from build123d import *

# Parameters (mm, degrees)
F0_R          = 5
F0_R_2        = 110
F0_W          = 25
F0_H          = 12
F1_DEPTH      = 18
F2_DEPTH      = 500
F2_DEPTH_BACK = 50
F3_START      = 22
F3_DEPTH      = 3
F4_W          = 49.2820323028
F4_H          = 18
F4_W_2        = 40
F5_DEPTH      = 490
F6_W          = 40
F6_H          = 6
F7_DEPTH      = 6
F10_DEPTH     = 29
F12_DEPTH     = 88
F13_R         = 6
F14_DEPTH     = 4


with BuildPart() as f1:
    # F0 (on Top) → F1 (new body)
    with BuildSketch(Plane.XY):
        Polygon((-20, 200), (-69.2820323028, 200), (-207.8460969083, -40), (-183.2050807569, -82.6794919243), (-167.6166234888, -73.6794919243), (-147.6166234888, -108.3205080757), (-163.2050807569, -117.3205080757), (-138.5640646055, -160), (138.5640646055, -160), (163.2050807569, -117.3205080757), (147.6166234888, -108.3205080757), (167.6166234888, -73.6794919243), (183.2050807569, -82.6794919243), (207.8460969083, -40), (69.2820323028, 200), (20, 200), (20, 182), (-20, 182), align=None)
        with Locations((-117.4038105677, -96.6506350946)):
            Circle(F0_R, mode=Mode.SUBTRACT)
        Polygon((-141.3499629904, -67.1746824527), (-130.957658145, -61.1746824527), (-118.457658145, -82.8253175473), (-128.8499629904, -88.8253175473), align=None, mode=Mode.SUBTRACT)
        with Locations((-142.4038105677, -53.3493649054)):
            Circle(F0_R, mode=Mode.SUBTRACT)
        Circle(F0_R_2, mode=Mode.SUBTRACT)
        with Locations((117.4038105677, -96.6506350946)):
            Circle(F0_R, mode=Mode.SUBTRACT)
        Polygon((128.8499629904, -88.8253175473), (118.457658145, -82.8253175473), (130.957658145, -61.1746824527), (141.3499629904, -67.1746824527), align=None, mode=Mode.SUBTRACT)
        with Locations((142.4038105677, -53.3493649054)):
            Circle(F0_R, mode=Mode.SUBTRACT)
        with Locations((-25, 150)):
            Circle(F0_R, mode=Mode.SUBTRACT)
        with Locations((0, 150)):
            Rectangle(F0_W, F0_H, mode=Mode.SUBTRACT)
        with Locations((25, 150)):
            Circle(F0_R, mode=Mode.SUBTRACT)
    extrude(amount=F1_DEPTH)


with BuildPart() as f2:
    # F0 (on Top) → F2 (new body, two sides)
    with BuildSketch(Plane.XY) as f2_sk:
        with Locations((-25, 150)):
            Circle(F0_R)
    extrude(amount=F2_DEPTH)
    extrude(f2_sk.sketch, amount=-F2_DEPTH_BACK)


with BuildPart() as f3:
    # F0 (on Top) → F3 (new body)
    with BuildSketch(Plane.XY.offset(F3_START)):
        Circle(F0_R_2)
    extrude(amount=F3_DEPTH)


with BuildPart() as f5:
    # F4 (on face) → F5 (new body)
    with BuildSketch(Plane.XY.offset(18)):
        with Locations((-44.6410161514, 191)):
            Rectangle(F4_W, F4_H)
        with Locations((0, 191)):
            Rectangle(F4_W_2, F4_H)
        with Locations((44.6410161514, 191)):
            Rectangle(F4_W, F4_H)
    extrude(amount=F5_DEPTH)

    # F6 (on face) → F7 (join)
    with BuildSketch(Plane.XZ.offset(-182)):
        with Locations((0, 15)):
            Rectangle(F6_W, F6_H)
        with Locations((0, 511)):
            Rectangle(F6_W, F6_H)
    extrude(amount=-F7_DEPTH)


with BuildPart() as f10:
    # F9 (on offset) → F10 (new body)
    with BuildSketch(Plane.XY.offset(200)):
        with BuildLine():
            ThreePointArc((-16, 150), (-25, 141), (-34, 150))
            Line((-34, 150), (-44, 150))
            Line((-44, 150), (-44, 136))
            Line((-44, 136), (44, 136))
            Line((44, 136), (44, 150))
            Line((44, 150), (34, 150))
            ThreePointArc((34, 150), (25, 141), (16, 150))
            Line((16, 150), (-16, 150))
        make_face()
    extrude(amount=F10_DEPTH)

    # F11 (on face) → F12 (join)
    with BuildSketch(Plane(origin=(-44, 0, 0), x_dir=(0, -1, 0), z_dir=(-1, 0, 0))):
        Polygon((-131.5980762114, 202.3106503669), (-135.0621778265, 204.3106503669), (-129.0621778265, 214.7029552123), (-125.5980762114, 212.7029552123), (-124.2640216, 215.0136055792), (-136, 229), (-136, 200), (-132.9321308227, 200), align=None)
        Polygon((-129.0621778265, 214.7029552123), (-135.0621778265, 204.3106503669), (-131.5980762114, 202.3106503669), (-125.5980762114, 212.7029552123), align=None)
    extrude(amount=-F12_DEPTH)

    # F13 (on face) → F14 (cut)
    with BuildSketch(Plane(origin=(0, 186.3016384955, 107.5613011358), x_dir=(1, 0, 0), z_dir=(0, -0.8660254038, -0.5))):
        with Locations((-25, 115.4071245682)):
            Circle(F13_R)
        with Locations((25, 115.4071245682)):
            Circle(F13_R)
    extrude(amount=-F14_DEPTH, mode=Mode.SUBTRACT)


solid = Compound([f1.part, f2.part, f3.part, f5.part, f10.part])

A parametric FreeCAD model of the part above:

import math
import FreeCAD as App
import Part
import Sketcher
from FreeCAD import Vector
Q = App.Units.Quantity

doc = App.newDocument("Part")
body = doc.addObject("PartDesign::Body", "Body")

# Sketch on XY plane
sketch1 = body.newObject("Sketcher::SketchObject", "Sketch")
sketch1.AttachmentSupport = (doc.getObject("XY_Plane"), [""])
sketch1.MapMode = "FlatFace"
sketch1.addGeometry(Part.LineSegment(Vector(-20, 200, 0), Vector(-69, 200, 0)), False)
sketch1.addGeometry(Part.LineSegment(Vector(-69, 200, 0), Vector(-208, -40, 0)), False)
sketch1.addGeometry(Part.LineSegment(Vector(-208, -40, 0), Vector(-183, -83, 0)), False)
sketch1.addGeometry(Part.LineSegment(Vector(-183, -83, 0), Vector(-168, -74, 0)), False)
sketch1.addGeometry(Part.LineSegment(Vector(-168, -74, 0), Vector(-148, -108, 0)), False)
sketch1.addGeometry(Part.LineSegment(Vector(-148, -108, 0), Vector(-163, -117, 0)), False)
sketch1.addGeometry(Part.LineSegment(Vector(-163, -117, 0), Vector(-139, -160, 0)), False)
sketch1.addGeometry(Part.LineSegment(Vector(-139, -160, 0), Vector(139, -160, 0)), False)
sketch1.addGeometry(Part.LineSegment(Vector(139, -160, 0), Vector(163, -117, 0)), False)
sketch1.addGeometry(Part.LineSegment(Vector(163, -117, 0), Vector(148, -108, 0)), False)
sketch1.addGeometry(Part.LineSegment(Vector(148, -108, 0), Vector(168, -74, 0)), False)
sketch1.addGeometry(Part.LineSegment(Vector(168, -74, 0), Vector(183, -83, 0)), False)
sketch1.addGeometry(Part.LineSegment(Vector(183, -83, 0), Vector(208, -40, 0)), False)
sketch1.addGeometry(Part.LineSegment(Vector(208, -40, 0), Vector(69, 200, 0)), False)
sketch1.addGeometry(Part.LineSegment(Vector(69, 200, 0), Vector(20, 200, 0)), False)
sketch1.addGeometry(Part.LineSegment(Vector(20, 200, 0), Vector(20, 182, 0)), False)
sketch1.addGeometry(Part.LineSegment(Vector(20, 182, 0), Vector(-20, 182, 0)), False)
sketch1.addGeometry(Part.LineSegment(Vector(-20, 182, 0), Vector(-20, 200, 0)), False)
sketch1.addGeometry(Part.Circle(Vector(-117, -97, 0), Vector(0, 0, 1), 5), False)
sketch1.addGeometry(Part.LineSegment(Vector(-129, -89, 0), Vector(-141, -67, 0)), False)
sketch1.addGeometry(Part.LineSegment(Vector(-141, -67, 0), Vector(-131, -61, 0)), False)
sketch1.addGeometry(Part.LineSegment(Vector(-131, -61, 0), Vector(-118, -83, 0)), False)
sketch1.addGeometry(Part.LineSegment(Vector(-118, -83, 0), Vector(-129, -89, 0)), False)
sketch1.addGeometry(Part.Circle(Vector(-142, -53, 0), Vector(0, 0, 1), 5), False)
sketch1.addGeometry(Part.Circle(Vector(117, -97, 0), Vector(0, 0, 1), 5), False)
sketch1.addGeometry(Part.LineSegment(Vector(141, -67, 0), Vector(129, -89, 0)), False)
sketch1.addGeometry(Part.LineSegment(Vector(129, -89, 0), Vector(118, -83, 0)), False)
sketch1.addGeometry(Part.LineSegment(Vector(118, -83, 0), Vector(131, -61, 0)), False)
sketch1.addGeometry(Part.LineSegment(Vector(131, -61, 0), Vector(141, -67, 0)), False)
sketch1.addGeometry(Part.Circle(Vector(142, -53, 0), Vector(0, 0, 1), 5), False)
sketch1.addGeometry(Part.Circle(Vector(0, 0, 0), Vector(0, 0, 1), 110), False)
sketch1.addGeometry(Part.Circle(Vector(-25, 150, 0), Vector(0, 0, 1), 5), False)
sketch1.addGeometry(Part.LineSegment(Vector(12, 144, 0), Vector(-12, 144, 0)), False)
sketch1.addGeometry(Part.LineSegment(Vector(-12, 144, 0), Vector(-12, 156, 0)), False)
sketch1.addGeometry(Part.LineSegment(Vector(-12, 156, 0), Vector(12, 156, 0)), False)
sketch1.addGeometry(Part.LineSegment(Vector(12, 156, 0), Vector(12, 144, 0)), False)
sketch1.addGeometry(Part.Circle(Vector(25, 150, 0), Vector(0, 0, 1), 5), False)
sketch1.addConstraint(Sketcher.Constraint("Coincident", 0, 2, 1, 1))
sketch1.addConstraint(Sketcher.Constraint("Coincident", 1, 2, 2, 1))
sketch1.addConstraint(Sketcher.Constraint("Coincident", 2, 2, 3, 1))
sketch1.addConstraint(Sketcher.Constraint("Coincident", 3, 2, 4, 1))
sketch1.addConstraint(Sketcher.Constraint("Coincident", 4, 2, 5, 1))
sketch1.addConstraint(Sketcher.Constraint("Coincident", 5, 2, 6, 1))
sketch1.addConstraint(Sketcher.Constraint("Coincident", 6, 2, 7, 1))
sketch1.addConstraint(Sketcher.Constraint("Coincident", 7, 2, 8, 1))
sketch1.addConstraint(Sketcher.Constraint("Coincident", 8, 2, 9, 1))
sketch1.addConstraint(Sketcher.Constraint("Coincident", 9, 2, 10, 1))
sketch1.addConstraint(Sketcher.Constraint("Coincident", 10, 2, 11, 1))
sketch1.addConstraint(Sketcher.Constraint("Coincident", 11, 2, 12, 1))
sketch1.addConstraint(Sketcher.Constraint("Coincident", 12, 2, 13, 1))
sketch1.addConstraint(Sketcher.Constraint("Coincident", 13, 2, 14, 1))
sketch1.addConstraint(Sketcher.Constraint("Coincident", 14, 2, 15, 1))
sketch1.addConstraint(Sketcher.Constraint("Coincident", 15, 2, 16, 1))
sketch1.addConstraint(Sketcher.Constraint("Coincident", 16, 2, 17, 1))
sketch1.addConstraint(Sketcher.Constraint("Coincident", 17, 2, 0, 1))
sketch1.addConstraint(Sketcher.Constraint("Coincident", 19, 2, 20, 1))
sketch1.addConstraint(Sketcher.Constraint("Coincident", 20, 2, 21, 1))
sketch1.addConstraint(Sketcher.Constraint("Coincident", 21, 2, 22, 1))
sketch1.addConstraint(Sketcher.Constraint("Coincident", 22, 2, 19, 1))
sketch1.addConstraint(Sketcher.Constraint("Coincident", 25, 2, 26, 1))
sketch1.addConstraint(Sketcher.Constraint("Coincident", 26, 2, 27, 1))
sketch1.addConstraint(Sketcher.Constraint("Coincident", 27, 2, 28, 1))
sketch1.addConstraint(Sketcher.Constraint("Coincident", 28, 2, 25, 1))
sketch1.addConstraint(Sketcher.Constraint("Coincident", 32, 2, 33, 1))
sketch1.addConstraint(Sketcher.Constraint("Coincident", 33, 2, 34, 1))
sketch1.addConstraint(Sketcher.Constraint("Coincident", 34, 2, 35, 1))
sketch1.addConstraint(Sketcher.Constraint("Coincident", 35, 2, 32, 1))
sketch1.addConstraint(Sketcher.Constraint("Horizontal", 0))
sketch1.addConstraint(Sketcher.Constraint("Horizontal", 7))
sketch1.addConstraint(Sketcher.Constraint("Horizontal", 14))
sketch1.addConstraint(Sketcher.Constraint("Vertical", 15))
sketch1.addConstraint(Sketcher.Constraint("Horizontal", 16))
sketch1.addConstraint(Sketcher.Constraint("Vertical", 17))
sketch1.addConstraint(Sketcher.Constraint("Horizontal", 32))
sketch1.addConstraint(Sketcher.Constraint("Vertical", 33))
sketch1.addConstraint(Sketcher.Constraint("Horizontal", 34))
sketch1.addConstraint(Sketcher.Constraint("Vertical", 35))
sketch1.addConstraint(Sketcher.Constraint("Coincident", 30, 3, -1, 1))
sketch1.addConstraint(Sketcher.Constraint("Equal", 18, 23))
sketch1.addConstraint(Sketcher.Constraint("Equal", 23, 24))
sketch1.addConstraint(Sketcher.Constraint("Equal", 24, 29))
sketch1.addConstraint(Sketcher.Constraint("Equal", 29, 31))
sketch1.addConstraint(Sketcher.Constraint("Equal", 31, 36))
sketch1.addConstraint(Sketcher.Constraint("Symmetric", 18, 3, 24, 3, -2))
sketch1.addConstraint(Sketcher.Constraint("Symmetric", 23, 3, 29, 3, -2))
sketch1.addConstraint(Sketcher.Constraint("Symmetric", 31, 3, 36, 3, -2))
sketch1.addConstraint(Sketcher.Constraint("Symmetric", 5, 2, 8, 2, -2))
sketch1.addConstraint(Sketcher.Constraint("Symmetric", 4, 2, 9, 2, -2))
sketch1.addConstraint(Sketcher.Constraint("Symmetric", 3, 2, 10, 2, -2))
sketch1.addConstraint(Sketcher.Constraint("Symmetric", 2, 2, 11, 2, -2))
sketch1.addConstraint(Sketcher.Constraint("Symmetric", 1, 2, 12, 2, -2))
sketch1.addConstraint(Sketcher.Constraint("Symmetric", 0, 2, 13, 2, -2))
sketch1.addConstraint(Sketcher.Constraint("Symmetric", 22, 2, 25, 2, -2))
sketch1.addConstraint(Sketcher.Constraint("Symmetric", 21, 2, 26, 2, -2))
sketch1.addConstraint(Sketcher.Constraint("Symmetric", 20, 2, 27, 2, -2))
sketch1.addConstraint(Sketcher.Constraint("Symmetric", 19, 2, 28, 2, -2))
sketch1.addConstraint(Sketcher.Constraint("Perpendicular", 2, 3))
sketch1.addConstraint(Sketcher.Constraint("Perpendicular", 3, 4))
sketch1.addConstraint(Sketcher.Constraint("Perpendicular", 4, 5))
sketch1.addConstraint(Sketcher.Constraint("Perpendicular", 5, 6))
sketch1.addConstraint(Sketcher.Constraint("Parallel", 1, 8))
sketch1.addConstraint(Sketcher.Constraint("Perpendicular", 8, 9))
sketch1.addConstraint(Sketcher.Constraint("Parallel", 13, 19))
sketch1.addConstraint(Sketcher.Constraint("Perpendicular", 19, 20))
sketch1.addConstraint(Sketcher.Constraint("Perpendicular", 20, 21))
sketch1.addConstraint(Sketcher.Constraint("Perpendicular", 21, 22))
sketch1.addConstraint(Sketcher.Constraint("Equal", 0, 14))
sketch1.addConstraint(Sketcher.Constraint("Equal", 3, 5))
sketch1.addConstraint(Sketcher.Constraint("Equal", 2, 6))
sketch1.addConstraint(Sketcher.Constraint("Diameter", 18, Q("10 mm")))
sketch1.addConstraint(Sketcher.Constraint("Diameter", 30, Q("220 mm")))
sketch1.addConstraint(Sketcher.Constraint("DistanceX", 16, 2, 16, 1, Q("40 mm")))
sketch1.addConstraint(Sketcher.Constraint("DistanceX", 32, 2, 32, 1, Q("25 mm")))
sketch1.addConstraint(Sketcher.Constraint("DistanceY", 15, 2, 15, 1, Q("18 mm")))
sketch1.addConstraint(Sketcher.Constraint("DistanceY", 33, 1, 33, 2, Q("12 mm")))
sketch1.addConstraint(Sketcher.Constraint("Angle", 1, Q("-120 deg")))
sketch1.addConstraint(Sketcher.Constraint("Distance", 3, Q("18 mm")))
sketch1.addConstraint(Sketcher.Constraint("Distance", 4, Q("40 mm")))
sketch1.addConstraint(Sketcher.Constraint("Distance", 19, Q("25 mm")))
sketch1.addConstraint(Sketcher.Constraint("Distance", 20, Q("12 mm")))
sketch1.addConstraint(Sketcher.Constraint("DistanceX", 31, 3, -1, 1, Q("25 mm")))
sketch1.addConstraint(Sketcher.Constraint("DistanceY", -1, 1, 31, 3, Q("150 mm")))
sketch1.addConstraint(Sketcher.Constraint("DistanceY", -1, 1, 0, 2, Q("200 mm")))
sketch1.addConstraint(Sketcher.Constraint("DistanceY", 1, 2, -1, 1, Q("40 mm")))
sketch1.addConstraint(Sketcher.Constraint("DistanceY", 6, 2, -1, 1, Q("160 mm")))
sketch1.addConstraint(Sketcher.Constraint("DistanceY", -1, 1, 32, 2, Q("144 mm")))
sketch1.addConstraint(Sketcher.Constraint("DistanceX", 23, 3, 18, 3, Q("25 mm")))
sketch1.addConstraint(Sketcher.Constraint("DistanceX", 32, 2, -1, 1, Q("12.5 mm")))
sketch1.addConstraint(Sketcher.Constraint("DistanceX", 7, 1, 7, 2, Q("277.128129 mm")))
sketch1.addConstraint(Sketcher.Constraint("DistanceX", 18, 3, -1, 1, Q("117.403811 mm")))
sketch1.addConstraint(Sketcher.Constraint("DistanceX", 20, 2, -1, 1, Q("130.957658 mm")))
sketch1.addConstraint(Sketcher.Constraint("DistanceY", 18, 3, 23, 3, Q("43.30127 mm")))
sketch1.addConstraint(Sketcher.Constraint("DistanceY", 3, 2, 19, 2, Q("6.504809 mm")))
sketch1.addConstraint(Sketcher.Constraint("DistanceY", 18, 3, -1, 1, Q("96.650635 mm")))
pad1 = body.newObject("PartDesign::Pad", "Pad")
pad1.Profile = sketch1
pad1.Length = 18
body2 = doc.addObject("PartDesign::Body", "Body001")

# Sketch on XY plane
sketch2 = body2.newObject("Sketcher::SketchObject", "Sketch001")
sketch2.AttachmentSupport = (doc.getObject("XY_Plane001"), [""])
sketch2.MapMode = "FlatFace"
sketch2.addGeometry(Part.Circle(Vector(-25, 150, 0), Vector(0, 0, 1), 5), False)
sketch2.addConstraint(Sketcher.Constraint("Diameter", 0, Q("10 mm")))
sketch2.addConstraint(Sketcher.Constraint("DistanceX", 0, 3, -1, 1, Q("25 mm")))
sketch2.addConstraint(Sketcher.Constraint("DistanceY", -1, 1, 0, 3, Q("150 mm")))
pad2 = body2.newObject("PartDesign::Pad", "Pad001")
pad2.Profile = sketch2
pad2.Type = "TwoLengths"
pad2.Length = 500
pad2.Length2 = 50
body3 = doc.addObject("PartDesign::Body", "Body002")

# Sketch on XY plane
sketch3 = body3.newObject("Sketcher::SketchObject", "Sketch002")
sketch3.AttachmentSupport = (doc.getObject("XY_Plane002"), [""])
sketch3.MapMode = "FlatFace"
sketch3.AttachmentOffset = App.Placement(Vector(0, 0, 22), App.Rotation())
sketch3.addGeometry(Part.Circle(Vector(0, 0, 0), Vector(0, 0, 1), 110), False)
sketch3.addConstraint(Sketcher.Constraint("Coincident", 0, 3, -1, 1))
sketch3.addConstraint(Sketcher.Constraint("Diameter", 0, Q("220 mm")))
pad3 = body3.newObject("PartDesign::Pad", "Pad002")
pad3.Profile = sketch3
pad3.Length = 3
body4 = doc.addObject("PartDesign::Body", "Body003")

# Sketch on XY plane
sketch4 = body4.newObject("Sketcher::SketchObject", "Sketch003")
sketch4.AttachmentSupport = (doc.getObject("XY_Plane003"), [""])
sketch4.MapMode = "FlatFace"
sketch4.AttachmentOffset = App.Placement(Vector(0, 0, 18), App.Rotation())
sketch4.addGeometry(Part.LineSegment(Vector(-69, 200, 0), Vector(-69, 182, 0)), False)
sketch4.addGeometry(Part.LineSegment(Vector(-69, 182, 0), Vector(69, 182, 0)), False)
sketch4.addGeometry(Part.LineSegment(Vector(69, 182, 0), Vector(69, 200, 0)), False)
sketch4.addGeometry(Part.LineSegment(Vector(69, 200, 0), Vector(-69, 200, 0)), False)
sketch4.addConstraint(Sketcher.Constraint("Coincident", 0, 2, 1, 1))
sketch4.addConstraint(Sketcher.Constraint("Coincident", 1, 2, 2, 1))
sketch4.addConstraint(Sketcher.Constraint("Coincident", 2, 2, 3, 1))
sketch4.addConstraint(Sketcher.Constraint("Coincident", 3, 2, 0, 1))
sketch4.addConstraint(Sketcher.Constraint("Vertical", 0))
sketch4.addConstraint(Sketcher.Constraint("Horizontal", 1))
sketch4.addConstraint(Sketcher.Constraint("Vertical", 2))
sketch4.addConstraint(Sketcher.Constraint("Horizontal", 3))
sketch4.addConstraint(Sketcher.Constraint("DistanceY", 0, 2, 0, 1, Q("18 mm")))
sketch4.addConstraint(Sketcher.Constraint("DistanceY", -1, 1, 0, 2, Q("182 mm")))
sketch4.addConstraint(Sketcher.Constraint("DistanceX", 1, 1, 1, 2, Q("138.564065 mm")))
sketch4.addConstraint(Sketcher.Constraint("DistanceX", 0, 2, -1, 1, Q("69.282032 mm")))
pad4 = body4.newObject("PartDesign::Pad", "Pad003")
pad4.Profile = sketch4
pad4.Length = 490

# Sketch on XZ plane
sketch5 = body4.newObject("Sketcher::SketchObject", "Sketch004")
sketch5.AttachmentSupport = (doc.getObject("XZ_Plane003"), [""])
sketch5.MapMode = "FlatFace"
sketch5.AttachmentOffset = App.Placement(Vector(0, 0, -182), App.Rotation())
sketch5.addGeometry(Part.LineSegment(Vector(-20, 18, 0), Vector(-20, 12, 0)), False)
sketch5.addGeometry(Part.LineSegment(Vector(-20, 12, 0), Vector(20, 12, 0)), False)
sketch5.addGeometry(Part.LineSegment(Vector(20, 12, 0), Vector(20, 18, 0)), False)
sketch5.addGeometry(Part.LineSegment(Vector(20, 18, 0), Vector(-20, 18, 0)), False)
sketch5.addGeometry(Part.LineSegment(Vector(-20, 514, 0), Vector(-20, 508, 0)), False)
sketch5.addGeometry(Part.LineSegment(Vector(-20, 508, 0), Vector(20, 508, 0)), False)
sketch5.addGeometry(Part.LineSegment(Vector(20, 508, 0), Vector(20, 514, 0)), False)
sketch5.addGeometry(Part.LineSegment(Vector(20, 514, 0), Vector(-20, 514, 0)), False)
sketch5.addConstraint(Sketcher.Constraint("Coincident", 0, 2, 1, 1))
sketch5.addConstraint(Sketcher.Constraint("Coincident", 1, 2, 2, 1))
sketch5.addConstraint(Sketcher.Constraint("Coincident", 2, 2, 3, 1))
sketch5.addConstraint(Sketcher.Constraint("Coincident", 3, 2, 0, 1))
sketch5.addConstraint(Sketcher.Constraint("Coincident", 4, 2, 5, 1))
sketch5.addConstraint(Sketcher.Constraint("Coincident", 5, 2, 6, 1))
sketch5.addConstraint(Sketcher.Constraint("Coincident", 6, 2, 7, 1))
sketch5.addConstraint(Sketcher.Constraint("Coincident", 7, 2, 4, 1))
sketch5.addConstraint(Sketcher.Constraint("Vertical", 0))
sketch5.addConstraint(Sketcher.Constraint("Horizontal", 1))
sketch5.addConstraint(Sketcher.Constraint("Vertical", 2))
sketch5.addConstraint(Sketcher.Constraint("Horizontal", 3))
sketch5.addConstraint(Sketcher.Constraint("Vertical", 4))
sketch5.addConstraint(Sketcher.Constraint("Horizontal", 5))
sketch5.addConstraint(Sketcher.Constraint("Vertical", 6))
sketch5.addConstraint(Sketcher.Constraint("Horizontal", 7))
sketch5.addConstraint(Sketcher.Constraint("Vertical", 3, 2, 4, 2))
sketch5.addConstraint(Sketcher.Constraint("Vertical", 2, 2, 5, 2))
sketch5.addConstraint(Sketcher.Constraint("Equal", 2, 4))
sketch5.addConstraint(Sketcher.Constraint("DistanceX", 1, 1, 1, 2, Q("40 mm")))
sketch5.addConstraint(Sketcher.Constraint("DistanceY", 0, 2, 0, 1, Q("6 mm")))
sketch5.addConstraint(Sketcher.Constraint("DistanceX", 0, 2, -1, 1, Q("20 mm")))
sketch5.addConstraint(Sketcher.Constraint("DistanceY", -1, 1, 0, 2, Q("12 mm")))
sketch5.addConstraint(Sketcher.Constraint("DistanceY", -1, 1, 4, 2, Q("508 mm")))
pad5 = body4.newObject("PartDesign::Pad", "Pad004")
pad5.Profile = sketch5
pad5.Length = 6
pad5.Reversed = True
body5 = doc.addObject("PartDesign::Body", "Body004")

# Sketch on XY plane
sketch6 = body5.newObject("Sketcher::SketchObject", "Sketch005")
sketch6.AttachmentSupport = (doc.getObject("XY_Plane004"), [""])
sketch6.MapMode = "FlatFace"
sketch6.AttachmentOffset = App.Placement(Vector(0, 0, 200), App.Rotation())
sketch6.addGeometry(Part.ArcOfCircle(Part.Circle(Vector(-25, 150, 0), Vector(0, 0, 1), 9), math.radians(180), math.radians(360)), False)
sketch6.addGeometry(Part.LineSegment(Vector(-34, 150, 0), Vector(-44, 150, 0)), False)
sketch6.addGeometry(Part.LineSegment(Vector(-44, 150, 0), Vector(-44, 136, 0)), False)
sketch6.addGeometry(Part.LineSegment(Vector(-44, 136, 0), Vector(44, 136, 0)), False)
sketch6.addGeometry(Part.LineSegment(Vector(44, 136, 0), Vector(44, 150, 0)), False)
sketch6.addGeometry(Part.LineSegment(Vector(44, 150, 0), Vector(34, 150, 0)), False)
sketch6.addGeometry(Part.ArcOfCircle(Part.Circle(Vector(25, 150, 0), Vector(0, 0, 1), 9), math.radians(180), math.radians(360)), False)
sketch6.addGeometry(Part.LineSegment(Vector(16, 150, 0), Vector(-16, 150, 0)), False)
sketch6.addConstraint(Sketcher.Constraint("Coincident", 0, 1, 1, 1))
sketch6.addConstraint(Sketcher.Constraint("Coincident", 1, 2, 2, 1))
sketch6.addConstraint(Sketcher.Constraint("Coincident", 2, 2, 3, 1))
sketch6.addConstraint(Sketcher.Constraint("Coincident", 3, 2, 4, 1))
sketch6.addConstraint(Sketcher.Constraint("Coincident", 4, 2, 5, 1))
sketch6.addConstraint(Sketcher.Constraint("Coincident", 5, 2, 6, 2))
sketch6.addConstraint(Sketcher.Constraint("Coincident", 6, 1, 7, 1))
sketch6.addConstraint(Sketcher.Constraint("Coincident", 7, 2, 0, 2))
sketch6.addConstraint(Sketcher.Constraint("Horizontal", 1))
sketch6.addConstraint(Sketcher.Constraint("Vertical", 2))
sketch6.addConstraint(Sketcher.Constraint("Horizontal", 3))
sketch6.addConstraint(Sketcher.Constraint("Vertical", 4))
sketch6.addConstraint(Sketcher.Constraint("Horizontal", 5))
sketch6.addConstraint(Sketcher.Constraint("Horizontal", 7))
sketch6.addConstraint(Sketcher.Constraint("Equal", 0, 6))
sketch6.addConstraint(Sketcher.Constraint("Symmetric", 0, 3, 6, 3, -2))
sketch6.addConstraint(Sketcher.Constraint("Symmetric", 1, 2, 4, 2, -2))
sketch6.addConstraint(Sketcher.Constraint("Horizontal", 6, 3, 0, 1))
sketch6.addConstraint(Sketcher.Constraint("Horizontal", 5, 2, 6, 1))
sketch6.addConstraint(Sketcher.Constraint("Radius", 0, Q("9 mm")))
sketch6.addConstraint(Sketcher.Constraint("DistanceX", 1, 2, 1, 1, Q("10 mm")))
sketch6.addConstraint(Sketcher.Constraint("DistanceX", 3, 1, 3, 2, Q("88 mm")))
sketch6.addConstraint(Sketcher.Constraint("DistanceY", 2, 2, 2, 1, Q("14 mm")))
sketch6.addConstraint(Sketcher.Constraint("DistanceY", -1, 1, 0, 3, Q("150 mm")))
pad6 = body5.newObject("PartDesign::Pad", "Pad005")
pad6.Profile = sketch6
pad6.Length = 29

# Sketch on YZ plane
sketch7 = body5.newObject("Sketcher::SketchObject", "Sketch006")
sketch7.AttachmentSupport = (doc.getObject("YZ_Plane004"), [""])
sketch7.MapMode = "FlatFace"
sketch7.AttachmentOffset = App.Placement(Vector(0, 0, -44), App.Rotation())
sketch7.addGeometry(Part.LineSegment(Vector(132.9, 200, 0), Vector(131.6, 202.3, 0)), False)
sketch7.addGeometry(Part.LineSegment(Vector(131.6, 202.3, 0), Vector(125.6, 212.7, 0)), False)
sketch7.addGeometry(Part.LineSegment(Vector(125.6, 212.7, 0), Vector(124.3, 215, 0)), False)
sketch7.addGeometry(Part.LineSegment(Vector(124.3, 215, 0), Vector(136, 229, 0)), False)
sketch7.addGeometry(Part.LineSegment(Vector(136, 229, 0), Vector(136, 200, 0)), False)
sketch7.addGeometry(Part.LineSegment(Vector(136, 200, 0), Vector(132.9, 200, 0)), False)
sketch7.addConstraint(Sketcher.Constraint("Coincident", 0, 2, 1, 1))
sketch7.addConstraint(Sketcher.Constraint("Coincident", 1, 2, 2, 1))
sketch7.addConstraint(Sketcher.Constraint("Coincident", 2, 2, 3, 1))
sketch7.addConstraint(Sketcher.Constraint("Coincident", 3, 2, 4, 1))
sketch7.addConstraint(Sketcher.Constraint("Coincident", 4, 2, 5, 1))
sketch7.addConstraint(Sketcher.Constraint("Coincident", 5, 2, 0, 1))
sketch7.addConstraint(Sketcher.Constraint("Vertical", 4))
sketch7.addConstraint(Sketcher.Constraint("Horizontal", 5))
sketch7.addConstraint(Sketcher.Constraint("Parallel", 0, 1))
sketch7.addConstraint(Sketcher.Constraint("Parallel", 1, 2))
sketch7.addConstraint(Sketcher.Constraint("Equal", 0, 2))
sketch7.addConstraint(Sketcher.Constraint("DistanceY", 4, 2, 4, 1, Q("29 mm")))
sketch7.addConstraint(Sketcher.Constraint("Angle", 0, Q("120 deg")))
sketch7.addConstraint(Sketcher.Constraint("Angle", 3, Q("50 deg")))
sketch7.addConstraint(Sketcher.Constraint("Distance", 1, Q("12 mm")))
sketch7.addConstraint(Sketcher.Constraint("DistanceX", -1, 1, 3, 2, Q("136 mm")))
sketch7.addConstraint(Sketcher.Constraint("DistanceY", -1, 1, 3, 2, Q("229 mm")))
sketch7.addConstraint(Sketcher.Constraint("DistanceX", 5, 2, 5, 1, Q("3.067869 mm")))
pad7 = body5.newObject("PartDesign::Pad", "Pad006")
pad7.Profile = sketch7
pad7.Length = 88

# Sketch on an angled plane
sketch8 = body5.newObject("Sketcher::SketchObject", "Sketch007")
sketch8.Placement = App.Placement(Vector(0, 186.301638, 107.561301), App.Rotation(Vector(1, 0, 0), Vector(0, -0.5, 0.866025404), Vector(0, -0.866025404, -0.5), "ZXY"))
sketch8.addGeometry(Part.Circle(Vector(-25, 115, 0), Vector(0, 0, 1), 6), False)
sketch8.addGeometry(Part.Circle(Vector(25, 115, 0), Vector(0, 0, 1), 6), False)
sketch8.addConstraint(Sketcher.Constraint("Equal", 0, 1))
sketch8.addConstraint(Sketcher.Constraint("Symmetric", 0, 3, 1, 3, -2))
sketch8.addConstraint(Sketcher.Constraint("Diameter", 0, Q("12 mm")))
sketch8.addConstraint(Sketcher.Constraint("DistanceX", 0, 3, -1, 1, Q("25 mm")))
sketch8.addConstraint(Sketcher.Constraint("DistanceY", -1, 1, 0, 3, Q("115.407125 mm")))
pocket1 = body5.newObject("PartDesign::Pocket", "Pocket")
pocket1.Profile = sketch8
pocket1.Length = 4

doc.recompute()
